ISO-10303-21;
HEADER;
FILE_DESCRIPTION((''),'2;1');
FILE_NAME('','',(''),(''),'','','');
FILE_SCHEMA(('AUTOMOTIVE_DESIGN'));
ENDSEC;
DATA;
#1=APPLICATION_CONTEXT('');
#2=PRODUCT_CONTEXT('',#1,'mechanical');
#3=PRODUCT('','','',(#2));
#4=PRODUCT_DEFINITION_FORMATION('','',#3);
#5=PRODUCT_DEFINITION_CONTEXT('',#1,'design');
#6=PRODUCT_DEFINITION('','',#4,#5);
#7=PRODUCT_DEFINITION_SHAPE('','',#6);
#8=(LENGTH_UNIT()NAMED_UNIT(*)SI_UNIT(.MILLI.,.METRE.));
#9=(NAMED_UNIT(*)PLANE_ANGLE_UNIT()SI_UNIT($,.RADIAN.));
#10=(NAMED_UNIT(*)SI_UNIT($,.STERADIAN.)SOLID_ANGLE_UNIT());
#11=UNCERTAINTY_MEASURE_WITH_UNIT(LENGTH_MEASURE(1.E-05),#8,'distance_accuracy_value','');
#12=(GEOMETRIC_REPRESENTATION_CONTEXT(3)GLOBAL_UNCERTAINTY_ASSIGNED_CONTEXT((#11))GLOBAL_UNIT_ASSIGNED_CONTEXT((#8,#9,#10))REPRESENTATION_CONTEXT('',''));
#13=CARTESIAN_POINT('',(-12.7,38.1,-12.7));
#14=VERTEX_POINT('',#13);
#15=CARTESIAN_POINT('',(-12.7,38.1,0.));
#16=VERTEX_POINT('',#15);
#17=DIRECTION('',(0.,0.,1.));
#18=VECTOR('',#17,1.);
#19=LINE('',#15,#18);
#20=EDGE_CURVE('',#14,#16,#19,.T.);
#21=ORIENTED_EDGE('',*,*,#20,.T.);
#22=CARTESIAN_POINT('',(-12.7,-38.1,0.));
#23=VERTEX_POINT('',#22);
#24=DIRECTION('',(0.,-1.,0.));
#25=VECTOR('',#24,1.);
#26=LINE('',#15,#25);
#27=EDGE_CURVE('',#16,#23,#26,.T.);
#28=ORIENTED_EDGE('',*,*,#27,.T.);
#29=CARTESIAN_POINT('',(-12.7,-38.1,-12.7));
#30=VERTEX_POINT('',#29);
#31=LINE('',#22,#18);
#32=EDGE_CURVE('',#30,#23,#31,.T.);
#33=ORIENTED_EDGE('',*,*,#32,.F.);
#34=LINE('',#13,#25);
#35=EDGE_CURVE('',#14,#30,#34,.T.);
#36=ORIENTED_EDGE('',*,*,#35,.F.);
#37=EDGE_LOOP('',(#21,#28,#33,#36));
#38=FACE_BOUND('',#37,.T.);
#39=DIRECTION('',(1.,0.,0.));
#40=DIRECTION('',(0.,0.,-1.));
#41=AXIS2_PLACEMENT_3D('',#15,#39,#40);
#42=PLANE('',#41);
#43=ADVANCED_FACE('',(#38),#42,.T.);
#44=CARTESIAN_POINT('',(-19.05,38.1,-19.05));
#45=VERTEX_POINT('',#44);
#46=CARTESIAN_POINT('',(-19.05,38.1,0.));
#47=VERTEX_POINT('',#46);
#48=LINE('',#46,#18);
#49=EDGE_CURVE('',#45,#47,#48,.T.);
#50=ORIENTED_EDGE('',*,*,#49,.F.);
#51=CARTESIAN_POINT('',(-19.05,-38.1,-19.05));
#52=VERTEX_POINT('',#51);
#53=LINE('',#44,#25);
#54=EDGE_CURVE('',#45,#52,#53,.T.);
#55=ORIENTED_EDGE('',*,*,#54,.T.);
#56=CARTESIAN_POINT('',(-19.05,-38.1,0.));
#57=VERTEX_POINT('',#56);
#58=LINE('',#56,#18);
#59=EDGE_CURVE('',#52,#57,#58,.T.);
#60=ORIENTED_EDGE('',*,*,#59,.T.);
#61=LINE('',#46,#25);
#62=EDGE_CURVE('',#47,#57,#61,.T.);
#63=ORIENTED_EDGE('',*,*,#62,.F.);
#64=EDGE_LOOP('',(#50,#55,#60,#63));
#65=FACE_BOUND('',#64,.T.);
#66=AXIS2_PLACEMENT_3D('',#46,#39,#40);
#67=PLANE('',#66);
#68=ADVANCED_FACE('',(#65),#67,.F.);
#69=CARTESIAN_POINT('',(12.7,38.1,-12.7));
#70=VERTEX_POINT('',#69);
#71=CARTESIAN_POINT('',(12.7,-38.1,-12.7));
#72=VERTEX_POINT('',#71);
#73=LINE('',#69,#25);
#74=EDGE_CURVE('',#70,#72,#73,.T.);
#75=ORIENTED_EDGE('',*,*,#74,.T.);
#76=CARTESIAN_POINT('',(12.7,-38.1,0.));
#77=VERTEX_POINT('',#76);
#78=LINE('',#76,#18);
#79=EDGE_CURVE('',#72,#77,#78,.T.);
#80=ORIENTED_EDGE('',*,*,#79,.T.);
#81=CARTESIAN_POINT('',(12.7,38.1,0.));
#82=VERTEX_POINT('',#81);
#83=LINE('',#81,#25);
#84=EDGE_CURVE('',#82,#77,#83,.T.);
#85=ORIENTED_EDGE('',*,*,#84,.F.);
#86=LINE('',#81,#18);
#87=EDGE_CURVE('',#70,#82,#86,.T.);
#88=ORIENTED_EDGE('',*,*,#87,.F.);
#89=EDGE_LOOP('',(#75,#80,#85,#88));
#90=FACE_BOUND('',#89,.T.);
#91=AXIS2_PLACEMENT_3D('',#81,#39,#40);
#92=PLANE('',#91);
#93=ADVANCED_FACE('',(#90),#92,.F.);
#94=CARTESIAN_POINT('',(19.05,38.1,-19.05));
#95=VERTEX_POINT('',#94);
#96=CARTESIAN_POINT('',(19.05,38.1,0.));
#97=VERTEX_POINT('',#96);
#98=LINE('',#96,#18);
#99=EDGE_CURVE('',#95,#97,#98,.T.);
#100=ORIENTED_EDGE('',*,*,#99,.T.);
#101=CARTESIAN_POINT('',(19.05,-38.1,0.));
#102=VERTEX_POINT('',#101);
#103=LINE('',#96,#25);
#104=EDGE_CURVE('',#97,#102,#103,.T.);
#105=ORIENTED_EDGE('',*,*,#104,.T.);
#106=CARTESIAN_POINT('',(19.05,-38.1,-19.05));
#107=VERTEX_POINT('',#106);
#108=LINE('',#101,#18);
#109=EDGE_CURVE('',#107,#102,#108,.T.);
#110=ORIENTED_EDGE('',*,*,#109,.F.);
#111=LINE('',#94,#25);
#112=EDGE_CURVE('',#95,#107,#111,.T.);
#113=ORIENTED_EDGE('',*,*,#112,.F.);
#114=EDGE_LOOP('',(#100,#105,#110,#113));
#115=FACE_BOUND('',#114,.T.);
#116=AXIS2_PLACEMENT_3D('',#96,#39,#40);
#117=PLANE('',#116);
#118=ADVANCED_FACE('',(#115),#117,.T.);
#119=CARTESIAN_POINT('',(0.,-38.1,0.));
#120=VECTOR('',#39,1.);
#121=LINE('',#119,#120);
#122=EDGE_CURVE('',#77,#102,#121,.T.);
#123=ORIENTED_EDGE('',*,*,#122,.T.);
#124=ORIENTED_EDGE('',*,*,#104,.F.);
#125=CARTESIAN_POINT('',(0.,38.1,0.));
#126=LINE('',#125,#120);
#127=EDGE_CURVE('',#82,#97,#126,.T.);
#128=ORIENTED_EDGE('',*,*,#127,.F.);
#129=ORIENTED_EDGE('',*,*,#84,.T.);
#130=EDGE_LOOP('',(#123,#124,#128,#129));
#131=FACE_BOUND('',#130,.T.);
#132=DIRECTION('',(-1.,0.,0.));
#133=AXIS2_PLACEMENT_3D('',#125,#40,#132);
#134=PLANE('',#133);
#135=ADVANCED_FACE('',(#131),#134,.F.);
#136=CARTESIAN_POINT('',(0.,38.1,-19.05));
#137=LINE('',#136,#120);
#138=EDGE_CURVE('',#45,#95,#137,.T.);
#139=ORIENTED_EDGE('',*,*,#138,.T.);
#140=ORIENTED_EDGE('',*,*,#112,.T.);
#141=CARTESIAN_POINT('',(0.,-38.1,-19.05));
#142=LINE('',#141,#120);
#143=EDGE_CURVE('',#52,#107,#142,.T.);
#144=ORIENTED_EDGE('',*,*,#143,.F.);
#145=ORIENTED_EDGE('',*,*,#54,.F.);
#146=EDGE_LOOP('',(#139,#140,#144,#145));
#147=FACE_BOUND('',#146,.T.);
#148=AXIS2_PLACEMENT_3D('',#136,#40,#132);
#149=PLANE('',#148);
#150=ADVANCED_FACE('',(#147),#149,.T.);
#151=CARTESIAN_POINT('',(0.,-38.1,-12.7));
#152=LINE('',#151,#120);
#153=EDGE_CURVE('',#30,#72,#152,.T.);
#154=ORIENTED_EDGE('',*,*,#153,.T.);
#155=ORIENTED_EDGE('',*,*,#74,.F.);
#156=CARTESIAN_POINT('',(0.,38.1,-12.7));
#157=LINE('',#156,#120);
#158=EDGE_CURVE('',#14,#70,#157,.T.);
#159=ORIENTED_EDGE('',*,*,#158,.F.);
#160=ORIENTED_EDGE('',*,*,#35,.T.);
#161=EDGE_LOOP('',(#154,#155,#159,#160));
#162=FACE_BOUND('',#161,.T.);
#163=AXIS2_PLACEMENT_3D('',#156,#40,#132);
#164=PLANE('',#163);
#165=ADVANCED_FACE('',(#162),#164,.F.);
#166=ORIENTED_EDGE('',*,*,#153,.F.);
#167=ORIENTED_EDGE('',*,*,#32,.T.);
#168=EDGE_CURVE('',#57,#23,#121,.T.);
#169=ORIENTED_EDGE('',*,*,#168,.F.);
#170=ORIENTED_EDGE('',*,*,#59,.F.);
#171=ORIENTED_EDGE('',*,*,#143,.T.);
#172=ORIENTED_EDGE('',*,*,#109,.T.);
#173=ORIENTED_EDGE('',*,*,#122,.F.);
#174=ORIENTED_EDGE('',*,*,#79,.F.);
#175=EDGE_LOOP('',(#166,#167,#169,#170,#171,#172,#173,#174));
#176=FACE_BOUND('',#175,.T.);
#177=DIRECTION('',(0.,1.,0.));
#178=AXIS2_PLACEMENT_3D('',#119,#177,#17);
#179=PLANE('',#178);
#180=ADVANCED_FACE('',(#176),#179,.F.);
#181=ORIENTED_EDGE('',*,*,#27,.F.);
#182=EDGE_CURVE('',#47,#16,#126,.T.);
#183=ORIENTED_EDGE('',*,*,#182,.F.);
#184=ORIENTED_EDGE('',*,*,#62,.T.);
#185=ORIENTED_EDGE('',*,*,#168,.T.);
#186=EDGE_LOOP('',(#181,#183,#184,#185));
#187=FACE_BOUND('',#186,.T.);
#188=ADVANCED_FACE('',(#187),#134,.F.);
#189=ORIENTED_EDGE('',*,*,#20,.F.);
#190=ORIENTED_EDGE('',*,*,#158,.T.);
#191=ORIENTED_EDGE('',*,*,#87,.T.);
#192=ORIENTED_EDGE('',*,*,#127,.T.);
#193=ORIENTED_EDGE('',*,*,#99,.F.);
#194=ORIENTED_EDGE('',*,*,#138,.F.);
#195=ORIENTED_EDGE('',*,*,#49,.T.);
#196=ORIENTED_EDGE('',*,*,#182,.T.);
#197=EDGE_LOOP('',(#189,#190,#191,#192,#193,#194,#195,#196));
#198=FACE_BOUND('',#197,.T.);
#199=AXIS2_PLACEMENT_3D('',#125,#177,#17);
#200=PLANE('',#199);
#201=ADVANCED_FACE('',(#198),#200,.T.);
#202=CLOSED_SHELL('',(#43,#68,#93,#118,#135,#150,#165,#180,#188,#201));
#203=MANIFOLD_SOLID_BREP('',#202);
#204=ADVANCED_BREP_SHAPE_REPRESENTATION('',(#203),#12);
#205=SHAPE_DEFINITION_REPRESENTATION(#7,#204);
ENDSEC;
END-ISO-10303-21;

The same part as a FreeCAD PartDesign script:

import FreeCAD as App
import Part
import Sketcher

V = App.Vector
Q = App.Units.Quantity

doc = App.newDocument("Part")
body = doc.addObject("PartDesign::Body", "Body")

sketch1 = body.newObject("Sketcher::SketchObject", "Sketch")
sketch1.AttachmentSupport = (doc.getObject("XZ_Plane"), [""])
sketch1.MapMode = "FlatFace"
sketch1.addGeometry([
    Part.LineSegment(V(19, -19, 0), V(-19, -19, 0)),
    Part.LineSegment(V(-19, -19, 0), V(-19, 0, 0)),
    Part.LineSegment(V(-19, 0, 0), V(-13, 0, 0)),
    Part.LineSegment(V(-13, 0, 0), V(-13, -13, 0)),
    Part.LineSegment(V(-13, -13, 0), V(13, -13, 0)),
    Part.LineSegment(V(13, -13, 0), V(13, 0, 0)),
    Part.LineSegment(V(13, 0, 0), V(19, 0, 0)),
    Part.LineSegment(V(19, 0, 0), V(19, -19, 0)),
], False)
sketch1.addConstraint([
    Sketcher.Constraint("Coincident", 0, 2, 1, 1),
    Sketcher.Constraint("Coincident", 1, 2, 2, 1),
    Sketcher.Constraint("Coincident", 2, 2, 3, 1),
    Sketcher.Constraint("Coincident", 3, 2, 4, 1),
    Sketcher.Constraint("Coincident", 4, 2, 5, 1),
    Sketcher.Constraint("Coincident", 5, 2, 6, 1),
    Sketcher.Constraint("Coincident", 6, 2, 7, 1),
    Sketcher.Constraint("Coincident", 7, 2, 0, 1),
    Sketcher.Constraint("Horizontal", 0),
    Sketcher.Constraint("Vertical", 1),
    Sketcher.Constraint("Horizontal", 2),
    Sketcher.Constraint("Vertical", 3),
    Sketcher.Constraint("Horizontal", 4),
    Sketcher.Constraint("Vertical", 5),
    Sketcher.Constraint("Horizontal", 6),
    Sketcher.Constraint("Vertical", 7),
    Sketcher.Constraint("Symmetric", 2, 2, 5, 2, -1, 1),
    Sketcher.Constraint("Symmetric", 1, 2, 6, 2, -2),
    Sketcher.Constraint("DistanceX", 4, 1, 4, 2, Q("1 in")),
    Sketcher.Constraint("DistanceX", 0, 2, 0, 1, Q("1.5 in")),
    Sketcher.Constraint("DistanceY", 3, 2, 3, 1, Q("0.5 in")),
    Sketcher.Constraint("DistanceY", 1, 1, 1, 2, Q("0.75 in")),
])
pad1 = body.newObject("PartDesign::Pad", "Pad")
pad1.Profile = sketch1
pad1.Length = Q("3 in")
pad1.Midplane = True

doc.recompute()
